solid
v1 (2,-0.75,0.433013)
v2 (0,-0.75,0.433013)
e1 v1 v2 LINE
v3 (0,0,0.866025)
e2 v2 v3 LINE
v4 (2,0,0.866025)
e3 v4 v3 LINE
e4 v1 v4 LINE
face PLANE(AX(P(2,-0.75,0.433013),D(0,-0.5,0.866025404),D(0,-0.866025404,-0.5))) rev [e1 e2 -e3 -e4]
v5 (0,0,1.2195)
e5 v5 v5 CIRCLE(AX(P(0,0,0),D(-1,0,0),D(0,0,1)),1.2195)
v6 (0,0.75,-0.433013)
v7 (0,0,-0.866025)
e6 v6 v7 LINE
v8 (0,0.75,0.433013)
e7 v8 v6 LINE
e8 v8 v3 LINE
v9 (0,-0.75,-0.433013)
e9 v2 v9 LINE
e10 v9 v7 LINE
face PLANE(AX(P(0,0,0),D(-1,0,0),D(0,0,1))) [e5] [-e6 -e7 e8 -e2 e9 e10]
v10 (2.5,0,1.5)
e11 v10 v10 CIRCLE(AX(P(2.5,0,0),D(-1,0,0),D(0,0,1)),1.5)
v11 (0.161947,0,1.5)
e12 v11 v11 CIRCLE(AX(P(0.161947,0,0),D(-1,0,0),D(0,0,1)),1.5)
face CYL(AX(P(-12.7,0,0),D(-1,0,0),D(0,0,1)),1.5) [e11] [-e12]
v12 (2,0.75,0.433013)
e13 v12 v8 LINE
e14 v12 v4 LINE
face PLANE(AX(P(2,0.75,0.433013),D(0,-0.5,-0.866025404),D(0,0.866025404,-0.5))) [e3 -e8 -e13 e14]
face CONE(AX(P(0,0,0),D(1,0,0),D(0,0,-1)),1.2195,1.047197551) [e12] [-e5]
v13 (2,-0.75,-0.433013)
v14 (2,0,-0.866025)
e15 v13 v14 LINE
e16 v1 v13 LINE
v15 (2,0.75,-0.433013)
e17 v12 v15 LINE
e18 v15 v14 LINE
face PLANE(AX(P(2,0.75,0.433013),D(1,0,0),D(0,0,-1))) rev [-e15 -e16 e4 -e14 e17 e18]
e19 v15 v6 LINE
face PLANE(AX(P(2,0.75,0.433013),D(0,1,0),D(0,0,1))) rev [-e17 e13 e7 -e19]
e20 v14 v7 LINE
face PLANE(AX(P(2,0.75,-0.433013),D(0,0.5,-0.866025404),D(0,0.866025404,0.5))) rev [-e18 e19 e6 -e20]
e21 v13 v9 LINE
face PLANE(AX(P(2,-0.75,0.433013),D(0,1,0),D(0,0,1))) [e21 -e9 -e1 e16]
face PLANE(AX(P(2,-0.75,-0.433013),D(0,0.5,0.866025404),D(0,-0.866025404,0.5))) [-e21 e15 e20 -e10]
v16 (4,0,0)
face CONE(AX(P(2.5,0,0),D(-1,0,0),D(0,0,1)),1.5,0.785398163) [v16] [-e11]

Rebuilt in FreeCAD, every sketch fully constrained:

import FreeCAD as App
import Part
import Sketcher
from FreeCAD import Vector
Q = App.Units.Quantity

doc = App.newDocument("Part")
body = doc.addObject("PartDesign::Body", "Body")

sketch1 = doc.addObject("Sketcher::SketchObject", "Sketch")
body.addObject(sketch1)
sketch1.AttachmentSupport = (doc.XY_Plane, [""])
sketch1.MapMode = "FlatFace"
sketch1.addGeometry([
    Part.LineSegment(Vector(0, 1.2195, 0), Vector(0, 0, 0)),
    Part.LineSegment(Vector(0, 0, 0), Vector(4, 0, 0)),
    Part.LineSegment(Vector(4, 0, 0), Vector(2.5, 1.5, 0)),
    Part.LineSegment(Vector(2.5, 1.5, 0), Vector(0.161947, 1.5, 0)),
    Part.LineSegment(Vector(0.161947, 1.5, 0), Vector(0, 1.2195, 0)),
], False)
sketch1.addConstraint([
    Sketcher.Constraint("Coincident", 0, 2, 1, 1),
    Sketcher.Constraint("Coincident", 1, 2, 2, 1),
    Sketcher.Constraint("Coincident", 2, 2, 3, 1),
    Sketcher.Constraint("Coincident", 3, 2, 4, 1),
    Sketcher.Constraint("Coincident", 4, 2, 0, 1),
    Sketcher.Constraint("Vertical", 0),
    Sketcher.Constraint("Horizontal", 1),
    Sketcher.Constraint("Horizontal", 3),
    Sketcher.Constraint("Coincident", 0, 2, -1, 1),
    Sketcher.Constraint("DistanceX", 1, 1, 1, 2, Q("4 mm")),
    Sketcher.Constraint("Angle", 2, Q("135 deg")),
    Sketcher.Constraint("Angle", 4, Q("-120 deg")),
    Sketcher.Constraint("DistanceX", -1, 1, 2, 2, Q("2.5 mm")),
    Sketcher.Constraint("DistanceY", 0, 2, 0, 1, Q("1.2195 mm")),
])
revolution = doc.addObject("PartDesign::Revolution", "Revolution")
body.addObject(revolution)
revolution.Profile = sketch1
revolution.ReferenceAxis = (sketch1, ["H_Axis"])
revolution.Angle = 360

sketch2 = doc.addObject("Sketcher::SketchObject", "Sketch001")
body.addObject(sketch2)
sketch2.AttachmentSupport = (doc.YZ_Plane, [""])
sketch2.MapMode = "FlatFace"
sketch2.addGeometry([
    Part.LineSegment(Vector(0.75, 0.433013, 0), Vector(0.75, -0.433013, 0)),
    Part.LineSegment(Vector(0.75, -0.433013, 0), Vector(0, -0.866025, 0)),
    Part.LineSegment(Vector(0, -0.866025, 0), Vector(-0.75, -0.433013, 0)),
    Part.LineSegment(Vector(-0.75, -0.433013, 0), Vector(-0.75, 0.433013, 0)),
    Part.LineSegment(Vector(-0.75, 0.433013, 0), Vector(0, 0.866025, 0)),
    Part.LineSegment(Vector(0, 0.866025, 0), Vector(0.75, 0.433013, 0)),
], False)
sketch2.addConstraint([
    Sketcher.Constraint("Coincident", 0, 2, 1, 1),
    Sketcher.Constraint("Coincident", 1, 2, 2, 1),
    Sketcher.Constraint("Coincident", 2, 2, 3, 1),
    Sketcher.Constraint("Coincident", 3, 2, 4, 1),
    Sketcher.Constraint("Coincident", 4, 2, 5, 1),
    Sketcher.Constraint("Coincident", 5, 2, 0, 1),
    Sketcher.Constraint("Vertical", 0),
    Sketcher.Constraint("Vertical", 3),
    Sketcher.Constraint("Symmetric", 0, 2, 3, 2, -1, 1),
    Sketcher.Constraint("Symmetric", 1, 2, 4, 2, -1, 1),
    Sketcher.Constraint("PointOnObject", 1, 2, -2),
    Sketcher.Constraint("Parallel", 2, 5),
    Sketcher.Constraint("Horizontal", 0, 2, 2, 2),
    Sketcher.Constraint("Angle", 1, Q("-150 deg")),
    Sketcher.Constraint("DistanceX", 2, 2, 0, 2, Q("1.5 mm")),
    Sketcher.Constraint("DistanceY", 0, 2, 0, 1, Q("0.866025 mm")),
])
pocket1 = doc.addObject("PartDesign::Pocket", "Pocket")
body.addObject(pocket1)
pocket1.Profile = sketch2
pocket1.Length = 2
pocket1.Reversed = True

doc.recompute()
